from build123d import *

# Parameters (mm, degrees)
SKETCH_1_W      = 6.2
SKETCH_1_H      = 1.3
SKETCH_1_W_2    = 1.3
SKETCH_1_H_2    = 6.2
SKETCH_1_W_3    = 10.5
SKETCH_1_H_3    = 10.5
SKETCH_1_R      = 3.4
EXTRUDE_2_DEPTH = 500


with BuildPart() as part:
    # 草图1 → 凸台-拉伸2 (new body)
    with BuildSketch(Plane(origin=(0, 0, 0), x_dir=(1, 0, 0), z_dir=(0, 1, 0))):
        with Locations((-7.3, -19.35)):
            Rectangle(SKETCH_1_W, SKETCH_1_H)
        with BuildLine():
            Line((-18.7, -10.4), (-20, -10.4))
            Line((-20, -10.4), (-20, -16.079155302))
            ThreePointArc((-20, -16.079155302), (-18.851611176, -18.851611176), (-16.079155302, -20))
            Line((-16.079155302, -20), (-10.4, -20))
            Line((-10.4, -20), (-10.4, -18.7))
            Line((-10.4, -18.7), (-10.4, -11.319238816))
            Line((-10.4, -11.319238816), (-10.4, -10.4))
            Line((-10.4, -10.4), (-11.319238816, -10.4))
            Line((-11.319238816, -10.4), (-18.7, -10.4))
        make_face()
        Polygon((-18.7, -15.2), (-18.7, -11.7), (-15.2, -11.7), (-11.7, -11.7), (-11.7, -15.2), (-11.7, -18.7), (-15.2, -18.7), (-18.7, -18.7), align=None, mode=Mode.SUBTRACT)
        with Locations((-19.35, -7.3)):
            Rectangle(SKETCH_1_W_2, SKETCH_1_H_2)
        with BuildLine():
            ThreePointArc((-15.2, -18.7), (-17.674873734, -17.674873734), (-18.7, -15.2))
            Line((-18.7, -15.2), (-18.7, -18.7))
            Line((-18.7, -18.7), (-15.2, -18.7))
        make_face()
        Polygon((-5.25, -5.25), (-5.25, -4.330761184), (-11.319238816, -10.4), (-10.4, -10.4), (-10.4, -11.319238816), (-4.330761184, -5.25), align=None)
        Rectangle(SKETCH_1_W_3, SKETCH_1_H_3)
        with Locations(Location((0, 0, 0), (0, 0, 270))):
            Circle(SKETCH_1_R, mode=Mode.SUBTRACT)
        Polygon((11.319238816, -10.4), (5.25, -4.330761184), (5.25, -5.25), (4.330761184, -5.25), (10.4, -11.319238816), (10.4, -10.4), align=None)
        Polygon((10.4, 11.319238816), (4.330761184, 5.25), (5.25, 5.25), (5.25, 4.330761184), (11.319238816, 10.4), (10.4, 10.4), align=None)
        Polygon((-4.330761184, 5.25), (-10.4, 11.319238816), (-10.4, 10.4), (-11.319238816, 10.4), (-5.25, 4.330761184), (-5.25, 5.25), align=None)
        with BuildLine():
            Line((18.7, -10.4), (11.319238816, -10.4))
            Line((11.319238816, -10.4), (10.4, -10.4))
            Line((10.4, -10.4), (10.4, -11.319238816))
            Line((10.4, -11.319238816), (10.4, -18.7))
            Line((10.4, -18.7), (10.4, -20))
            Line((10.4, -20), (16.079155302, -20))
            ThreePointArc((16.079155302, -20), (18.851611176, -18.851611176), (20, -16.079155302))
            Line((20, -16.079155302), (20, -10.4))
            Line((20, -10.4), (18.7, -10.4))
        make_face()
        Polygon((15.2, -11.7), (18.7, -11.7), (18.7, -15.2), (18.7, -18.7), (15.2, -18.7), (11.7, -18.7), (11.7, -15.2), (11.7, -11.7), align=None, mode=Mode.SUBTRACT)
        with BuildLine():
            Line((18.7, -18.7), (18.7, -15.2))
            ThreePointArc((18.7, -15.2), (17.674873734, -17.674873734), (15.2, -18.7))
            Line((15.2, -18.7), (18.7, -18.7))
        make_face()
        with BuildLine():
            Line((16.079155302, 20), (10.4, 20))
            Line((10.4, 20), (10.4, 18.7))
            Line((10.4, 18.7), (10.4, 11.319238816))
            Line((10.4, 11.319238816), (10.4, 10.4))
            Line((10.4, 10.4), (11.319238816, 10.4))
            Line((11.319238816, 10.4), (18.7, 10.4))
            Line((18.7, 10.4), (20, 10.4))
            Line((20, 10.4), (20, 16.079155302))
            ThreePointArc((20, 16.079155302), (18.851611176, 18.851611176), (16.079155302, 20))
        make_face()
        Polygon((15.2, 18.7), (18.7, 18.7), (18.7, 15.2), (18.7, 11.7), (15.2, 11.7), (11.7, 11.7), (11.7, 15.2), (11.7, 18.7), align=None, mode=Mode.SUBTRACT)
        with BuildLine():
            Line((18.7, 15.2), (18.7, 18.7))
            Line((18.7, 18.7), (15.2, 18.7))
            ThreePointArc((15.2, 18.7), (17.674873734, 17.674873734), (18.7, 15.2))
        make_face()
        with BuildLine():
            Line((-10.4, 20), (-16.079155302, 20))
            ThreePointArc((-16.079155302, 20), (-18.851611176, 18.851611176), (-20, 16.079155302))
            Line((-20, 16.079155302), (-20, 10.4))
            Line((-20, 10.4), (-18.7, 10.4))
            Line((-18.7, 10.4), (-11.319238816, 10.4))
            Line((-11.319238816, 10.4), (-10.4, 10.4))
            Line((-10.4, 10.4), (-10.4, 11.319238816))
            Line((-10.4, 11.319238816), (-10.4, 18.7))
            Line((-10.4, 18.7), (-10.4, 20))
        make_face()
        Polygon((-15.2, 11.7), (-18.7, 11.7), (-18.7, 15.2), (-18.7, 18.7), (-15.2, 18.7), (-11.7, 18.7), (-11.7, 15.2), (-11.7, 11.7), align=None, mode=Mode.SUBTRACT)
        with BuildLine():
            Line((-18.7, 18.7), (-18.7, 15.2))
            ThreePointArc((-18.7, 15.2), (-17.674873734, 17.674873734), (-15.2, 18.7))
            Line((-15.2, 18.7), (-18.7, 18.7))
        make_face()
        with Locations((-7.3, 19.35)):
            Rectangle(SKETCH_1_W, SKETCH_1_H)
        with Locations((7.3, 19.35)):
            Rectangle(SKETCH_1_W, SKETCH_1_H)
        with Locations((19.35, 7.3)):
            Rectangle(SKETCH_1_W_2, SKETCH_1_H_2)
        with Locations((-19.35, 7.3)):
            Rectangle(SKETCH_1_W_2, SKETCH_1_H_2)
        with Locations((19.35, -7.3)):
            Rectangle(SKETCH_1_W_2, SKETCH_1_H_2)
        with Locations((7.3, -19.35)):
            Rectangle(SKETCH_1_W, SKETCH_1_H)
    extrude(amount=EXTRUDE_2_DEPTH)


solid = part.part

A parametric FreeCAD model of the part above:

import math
import FreeCAD as App
import Part
import Sketcher
Q = App.Units.Quantity

doc = App.newDocument("Part")
params = doc.addObject("Spreadsheet::Sheet", "Params")
for row, (alias, value) in enumerate([
    ("sketch1_diameter", "6.8 mm"),
    ("sketch1_radius", "3.5 mm"),
    ("sketch1_width", "7 mm"),
    ("sketch1_width2", "6.2 mm"),
    ("sketch1_width3", "1.3 mm"),
    ("pad1_length", "500 mm"),
], start=1):
    params.set(f"A{row}", alias)
    params.set(f"B{row}", "=" + value)
    params.setAlias(f"B{row}", alias)

body = doc.addObject("PartDesign::Body", "Body")

sketch1 = body.newObject("Sketcher::SketchObject", "Sketch")
sketch1.AttachmentSupport = (doc.getObject("XZ_Plane"), [""])
sketch1.MapMode = "FlatFace"
sketch1.addGeometry(Part.LineSegment(App.Vector(-4.2, 20, 0), App.Vector(-4.2, 18.7, 0)), False)
sketch1.addGeometry(Part.LineSegment(App.Vector(-4.2, 18.7, 0), App.Vector(-10.4, 18.7, 0)), False)
sketch1.addGeometry(Part.LineSegment(App.Vector(-10.4, 18.7, 0), App.Vector(-10.4, 11.3, 0)), False)
sketch1.addGeometry(Part.LineSegment(App.Vector(-10.4, 11.3, 0), App.Vector(-4.3, 5.2, 0)), False)
sketch1.addGeometry(Part.LineSegment(App.Vector(-4.3, 5.2, 0), App.Vector(4.3, 5.2, 0)), False)
sketch1.addGeometry(Part.LineSegment(App.Vector(4.3, 5.2, 0), App.Vector(10.4, 11.3, 0)), False)
sketch1.addGeometry(Part.LineSegment(App.Vector(10.4, 11.3, 0), App.Vector(10.4, 18.7, 0)), False)
sketch1.addGeometry(Part.LineSegment(App.Vector(10.4, 18.7, 0), App.Vector(4.2, 18.7, 0)), False)
sketch1.addGeometry(Part.LineSegment(App.Vector(4.2, 18.7, 0), App.Vector(4.2, 20, 0)), False)
sketch1.addGeometry(Part.LineSegment(App.Vector(4.2, 20, 0), App.Vector(16.1, 20, 0)), False)
sketch1.addGeometry(Part.ArcOfCircle(Part.Circle(App.Vector(16.1, 16.1, 0), App.Vector(0, 0, 1), 3.9), math.radians(0), math.radians(90)), False)
sketch1.addGeometry(Part.LineSegment(App.Vector(20, 16.1, 0), App.Vector(20, 4.2, 0)), False)
sketch1.addGeometry(Part.LineSegment(App.Vector(20, 4.2, 0), App.Vector(18.7, 4.2, 0)), False)
sketch1.addGeometry(Part.LineSegment(App.Vector(18.7, 4.2, 0), App.Vector(18.7, 10.4, 0)), False)
sketch1.addGeometry(Part.LineSegment(App.Vector(18.7, 10.4, 0), App.Vector(11.3, 10.4, 0)), False)
sketch1.addGeometry(Part.LineSegment(App.Vector(11.3, 10.4, 0), App.Vector(5.2, 4.3, 0)), False)
sketch1.addGeometry(Part.LineSegment(App.Vector(5.2, 4.3, 0), App.Vector(5.2, -4.3, 0)), False)
sketch1.addGeometry(Part.LineSegment(App.Vector(5.2, -4.3, 0), App.Vector(11.3, -10.4, 0)), False)
sketch1.addGeometry(Part.LineSegment(App.Vector(11.3, -10.4, 0), App.Vector(18.7, -10.4, 0)), False)
sketch1.addGeometry(Part.LineSegment(App.Vector(18.7, -10.4, 0), App.Vector(18.7, -4.2, 0)), False)
sketch1.addGeometry(Part.LineSegment(App.Vector(18.7, -4.2, 0), App.Vector(20, -4.2, 0)), False)
sketch1.addGeometry(Part.LineSegment(App.Vector(20, -4.2, 0), App.Vector(20, -16.1, 0)), False)
sketch1.addGeometry(Part.ArcOfCircle(Part.Circle(App.Vector(16.1, -16.1, 0), App.Vector(0, 0, 1), 3.9), math.radians(-90), math.radians(0)), False)
sketch1.addGeometry(Part.LineSegment(App.Vector(16.1, -20, 0), App.Vector(4.2, -20, 0)), False)
sketch1.addGeometry(Part.LineSegment(App.Vector(4.2, -20, 0), App.Vector(4.2, -18.7, 0)), False)
sketch1.addGeometry(Part.LineSegment(App.Vector(4.2, -18.7, 0), App.Vector(10.4, -18.7, 0)), False)
sketch1.addGeometry(Part.LineSegment(App.Vector(10.4, -18.7, 0), App.Vector(10.4, -11.3, 0)), False)
sketch1.addGeometry(Part.LineSegment(App.Vector(10.4, -11.3, 0), App.Vector(4.3, -5.2, 0)), False)
sketch1.addGeometry(Part.LineSegment(App.Vector(4.3, -5.2, 0), App.Vector(-4.3, -5.2, 0)), False)
sketch1.addGeometry(Part.LineSegment(App.Vector(-4.3, -5.2, 0), App.Vector(-10.4, -11.3, 0)), False)
sketch1.addGeometry(Part.LineSegment(App.Vector(-10.4, -11.3, 0), App.Vector(-10.4, -18.7, 0)), False)
sketch1.addGeometry(Part.LineSegment(App.Vector(-10.4, -18.7, 0), App.Vector(-4.2, -18.7, 0)), False)
sketch1.addGeometry(Part.LineSegment(App.Vector(-4.2, -18.7, 0), App.Vector(-4.2, -20, 0)), False)
sketch1.addGeometry(Part.LineSegment(App.Vector(-4.2, -20, 0), App.Vector(-16.1, -20, 0)), False)
sketch1.addGeometry(Part.ArcOfCircle(Part.Circle(App.Vector(-16.1, -16.1, 0), App.Vector(0, 0, 1), 3.9), math.radians(180), math.radians(270)), False)
sketch1.addGeometry(Part.LineSegment(App.Vector(-20, -16.1, 0), App.Vector(-20, -4.2, 0)), False)
sketch1.addGeometry(Part.LineSegment(App.Vector(-20, -4.2, 0), App.Vector(-18.7, -4.2, 0)), False)
sketch1.addGeometry(Part.LineSegment(App.Vector(-18.7, -4.2, 0), App.Vector(-18.7, -10.4, 0)), False)
sketch1.addGeometry(Part.LineSegment(App.Vector(-18.7, -10.4, 0), App.Vector(-11.3, -10.4, 0)), False)
sketch1.addGeometry(Part.LineSegment(App.Vector(-11.3, -10.4, 0), App.Vector(-5.2, -4.3, 0)), False)
sketch1.addGeometry(Part.LineSegment(App.Vector(-5.2, -4.3, 0), App.Vector(-5.2, 4.3, 0)), False)
sketch1.addGeometry(Part.LineSegment(App.Vector(-5.2, 4.3, 0), App.Vector(-11.3, 10.4, 0)), False)
sketch1.addGeometry(Part.LineSegment(App.Vector(-11.3, 10.4, 0), App.Vector(-18.7, 10.4, 0)), False)
sketch1.addGeometry(Part.LineSegment(App.Vector(-18.7, 10.4, 0), App.Vector(-18.7, 4.2, 0)), False)
sketch1.addGeometry(Part.LineSegment(App.Vector(-18.7, 4.2, 0), App.Vector(-20, 4.2, 0)), False)
sketch1.addGeometry(Part.LineSegment(App.Vector(-20, 4.2, 0), App.Vector(-20, 16.1, 0)), False)
sketch1.addGeometry(Part.ArcOfCircle(Part.Circle(App.Vector(-16.1, 16.1, 0), App.Vector(0, 0, 1), 3.9), math.radians(90), math.radians(180)), False)
sketch1.addGeometry(Part.LineSegment(App.Vector(-16.1, 20, 0), App.Vector(-4.2, 20, 0)), False)
sketch1.addGeometry(Part.LineSegment(App.Vector(-18.7, 15.2, 0), App.Vector(-18.7, 11.7, 0)), False)
sketch1.addGeometry(Part.LineSegment(App.Vector(-18.7, 11.7, 0), App.Vector(-11.7, 11.7, 0)), False)
sketch1.addGeometry(Part.LineSegment(App.Vector(-11.7, 11.7, 0), App.Vector(-11.7, 18.7, 0)), False)
sketch1.addGeometry(Part.LineSegment(App.Vector(-11.7, 18.7, 0), App.Vector(-15.2, 18.7, 0)), False)
sketch1.addGeometry(Part.ArcOfCircle(Part.Circle(App.Vector(-15.2, 15.2, 0), App.Vector(0, 0, 1), 3.5), math.radians(90), math.radians(180)), False)
sketch1.addGeometry(Part.LineSegment(App.Vector(11.7, 11.7, 0), App.Vector(18.7, 11.7, 0)), False)
sketch1.addGeometry(Part.LineSegment(App.Vector(18.7, 11.7, 0), App.Vector(18.7, 15.2, 0)), False)
sketch1.addGeometry(Part.ArcOfCircle(Part.Circle(App.Vector(15.2, 15.2, 0), App.Vector(0, 0, 1), 3.5), math.radians(0), math.radians(90)), False)
sketch1.addGeometry(Part.LineSegment(App.Vector(15.2, 18.7, 0), App.Vector(11.7, 18.7, 0)), False)
sketch1.addGeometry(Part.LineSegment(App.Vector(11.7, 18.7, 0), App.Vector(11.7, 11.7, 0)), False)
sketch1.addGeometry(Part.Circle(App.Vector(0, 0, 0), App.Vector(0, 0, 1), 3.4), False)
sketch1.addGeometry(Part.LineSegment(App.Vector(-11.7, -11.7, 0), App.Vector(-18.7, -11.7, 0)), False)
sketch1.addGeometry(Part.LineSegment(App.Vector(-18.7, -11.7, 0), App.Vector(-18.7, -15.2, 0)), False)
sketch1.addGeometry(Part.ArcOfCircle(Part.Circle(App.Vector(-15.2, -15.2, 0), App.Vector(0, 0, 1), 3.5), math.radians(-180), math.radians(-90)), False)
sketch1.addGeometry(Part.LineSegment(App.Vector(-15.2, -18.7, 0), App.Vector(-11.7, -18.7, 0)), False)
sketch1.addGeometry(Part.LineSegment(App.Vector(-11.7, -18.7, 0), App.Vector(-11.7, -11.7, 0)), False)
sketch1.addGeometry(Part.LineSegment(App.Vector(11.7, -18.7, 0), App.Vector(15.2, -18.7, 0)), False)
sketch1.addGeometry(Part.ArcOfCircle(Part.Circle(App.Vector(15.2, -15.2, 0), App.Vector(0, 0, 1), 3.5), math.radians(-90), math.radians(0)), False)
sketch1.addGeometry(Part.LineSegment(App.Vector(18.7, -15.2, 0), App.Vector(18.7, -11.7, 0)), False)
sketch1.addGeometry(Part.LineSegment(App.Vector(18.7, -11.7, 0), App.Vector(11.7, -11.7, 0)), False)
sketch1.addGeometry(Part.LineSegment(App.Vector(11.7, -11.7, 0), App.Vector(11.7, -18.7, 0)), False)
sketch1.addConstraint(Sketcher.Constraint("Coincident", 0, 2, 1, 1))
sketch1.addConstraint(Sketcher.Constraint("Coincident", 1, 2, 2, 1))
sketch1.addConstraint(Sketcher.Constraint("Coincident", 2, 2, 3, 1))
sketch1.addConstraint(Sketcher.Constraint("Coincident", 3, 2, 4, 1))
sketch1.addConstraint(Sketcher.Constraint("Coincident", 4, 2, 5, 1))
sketch1.addConstraint(Sketcher.Constraint("Coincident", 5, 2, 6, 1))
sketch1.addConstraint(Sketcher.Constraint("Coincident", 6, 2, 7, 1))
sketch1.addConstraint(Sketcher.Constraint("Coincident", 7, 2, 8, 1))
sketch1.addConstraint(Sketcher.Constraint("Coincident", 8, 2, 9, 1))
sketch1.addConstraint(Sketcher.Constraint("Tangent", 9, 2, 10, 2))
sketch1.addConstraint(Sketcher.Constraint("Tangent", 10, 1, 11, 1))
sketch1.addConstraint(Sketcher.Constraint("Coincident", 11, 2, 12, 1))
sketch1.addConstraint(Sketcher.Constraint("Coincident", 12, 2, 13, 1))
sketch1.addConstraint(Sketcher.Constraint("Coincident", 13, 2, 14, 1))
sketch1.addConstraint(Sketcher.Constraint("Coincident", 14, 2, 15, 1))
sketch1.addConstraint(Sketcher.Constraint("Coincident", 15, 2, 16, 1))
sketch1.addConstraint(Sketcher.Constraint("Coincident", 16, 2, 17, 1))
sketch1.addConstraint(Sketcher.Constraint("Coincident", 17, 2, 18, 1))
sketch1.addConstraint(Sketcher.Constraint("Coincident", 18, 2, 19, 1))
sketch1.addConstraint(Sketcher.Constraint("Coincident", 19, 2, 20, 1))
sketch1.addConstraint(Sketcher.Constraint("Coincident", 20, 2, 21, 1))
sketch1.addConstraint(Sketcher.Constraint("Tangent", 21, 2, 22, 2))
sketch1.addConstraint(Sketcher.Constraint("Tangent", 22, 1, 23, 1))
sketch1.addConstraint(Sketcher.Constraint("Coincident", 23, 2, 24, 1))
sketch1.addConstraint(Sketcher.Constraint("Coincident", 24, 2, 25, 1))
sketch1.addConstraint(Sketcher.Constraint("Coincident", 25, 2, 26, 1))
sketch1.addConstraint(Sketcher.Constraint("Coincident", 26, 2, 27, 1))
sketch1.addConstraint(Sketcher.Constraint("Coincident", 27, 2, 28, 1))
sketch1.addConstraint(Sketcher.Constraint("Coincident", 28, 2, 29, 1))
sketch1.addConstraint(Sketcher.Constraint("Coincident", 29, 2, 30, 1))
sketch1.addConstraint(Sketcher.Constraint("Coincident", 30, 2, 31, 1))
sketch1.addConstraint(Sketcher.Constraint("Coincident", 31, 2, 32, 1))
sketch1.addConstraint(Sketcher.Constraint("Coincident", 32, 2, 33, 1))
sketch1.addConstraint(Sketcher.Constraint("Tangent", 33, 2, 34, 2))
sketch1.addConstraint(Sketcher.Constraint("Tangent", 34, 1, 35, 1))
sketch1.addConstraint(Sketcher.Constraint("Coincident", 35, 2, 36, 1))
sketch1.addConstraint(Sketcher.Constraint("Coincident", 36, 2, 37, 1))
sketch1.addConstraint(Sketcher.Constraint("Coincident", 37, 2, 38, 1))
sketch1.addConstraint(Sketcher.Constraint("Coincident", 38, 2, 39, 1))
sketch1.addConstraint(Sketcher.Constraint("Coincident", 39, 2, 40, 1))
sketch1.addConstraint(Sketcher.Constraint("Coincident", 40, 2, 41, 1))
sketch1.addConstraint(Sketcher.Constraint("Coincident", 41, 2, 42, 1))
sketch1.addConstraint(Sketcher.Constraint("Coincident", 42, 2, 43, 1))
sketch1.addConstraint(Sketcher.Constraint("Coincident", 43, 2, 44, 1))
sketch1.addConstraint(Sketcher.Constraint("Coincident", 44, 2, 45, 1))
sketch1.addConstraint(Sketcher.Constraint("Tangent", 45, 2, 46, 2))
sketch1.addConstraint(Sketcher.Constraint("Tangent", 46, 1, 47, 1))
sketch1.addConstraint(Sketcher.Constraint("Coincident", 47, 2, 0, 1))
sketch1.addConstraint(Sketcher.Constraint("Coincident", 48, 2, 49, 1))
sketch1.addConstraint(Sketcher.Constraint("Coincident", 49, 2, 50, 1))
sketch1.addConstraint(Sketcher.Constraint("Coincident", 50, 2, 51, 1))
sketch1.addConstraint(Sketcher.Constraint("Tangent", 51, 2, 52, 1))
sketch1.addConstraint(Sketcher.Constraint("Tangent", 52, 2, 48, 1))
sketch1.addConstraint(Sketcher.Constraint("Coincident", 53, 2, 54, 1))
sketch1.addConstraint(Sketcher.Constraint("Tangent", 54, 2, 55, 1))
sketch1.addConstraint(Sketcher.Constraint("Tangent", 55, 2, 56, 1))
sketch1.addConstraint(Sketcher.Constraint("Coincident", 56, 2, 57, 1))
sketch1.addConstraint(Sketcher.Constraint("Coincident", 57, 2, 53, 1))
sketch1.addConstraint(Sketcher.Constraint("Coincident", 59, 2, 60, 1))
sketch1.addConstraint(Sketcher.Constraint("Tangent", 60, 2, 61, 1))
sketch1.addConstraint(Sketcher.Constraint("Tangent", 61, 2, 62, 1))
sketch1.addConstraint(Sketcher.Constraint("Coincident", 62, 2, 63, 1))
sketch1.addConstraint(Sketcher.Constraint("Coincident", 63, 2, 59, 1))
sketch1.addConstraint(Sketcher.Constraint("Tangent", 64, 2, 65, 1))
sketch1.addConstraint(Sketcher.Constraint("Tangent", 65, 2, 66, 1))
sketch1.addConstraint(Sketcher.Constraint("Coincident", 66, 2, 67, 1))
sketch1.addConstraint(Sketcher.Constraint("Coincident", 67, 2, 68, 1))
sketch1.addConstraint(Sketcher.Constraint("Coincident", 68, 2, 64, 1))
sketch1.addConstraint(Sketcher.Constraint("Vertical", 0))
sketch1.addConstraint(Sketcher.Constraint("Horizontal", 1))
sketch1.addConstraint(Sketcher.Constraint("Vertical", 2))
sketch1.addConstraint(Sketcher.Constraint("Horizontal", 4))
sketch1.addConstraint(Sketcher.Constraint("Vertical", 6))
sketch1.addConstraint(Sketcher.Constraint("Horizontal", 7))
sketch1.addConstraint(Sketcher.Constraint("Vertical", 8))
sketch1.addConstraint(Sketcher.Constraint("Horizontal", 9))
sketch1.addConstraint(Sketcher.Constraint("Vertical", 11))
sketch1.addConstraint(Sketcher.Constraint("Horizontal", 12))
sketch1.addConstraint(Sketcher.Constraint("Vertical", 13))
sketch1.addConstraint(Sketcher.Constraint("Horizontal", 14))
sketch1.addConstraint(Sketcher.Constraint("Vertical", 16))
sketch1.addConstraint(Sketcher.Constraint("Horizontal", 18))
sketch1.addConstraint(Sketcher.Constraint("Vertical", 19))
sketch1.addConstraint(Sketcher.Constraint("Horizontal", 20))
sketch1.addConstraint(Sketcher.Constraint("Vertical", 21))
sketch1.addConstraint(Sketcher.Constraint("Horizontal", 23))
sketch1.addConstraint(Sketcher.Constraint("Vertical", 24))
sketch1.addConstraint(Sketcher.Constraint("Horizontal", 25))
sketch1.addConstraint(Sketcher.Constraint("Vertical", 26))
sketch1.addConstraint(Sketcher.Constraint("Horizontal", 28))
sketch1.addConstraint(Sketcher.Constraint("Vertical", 30))
sketch1.addConstraint(Sketcher.Constraint("Horizontal", 31))
sketch1.addConstraint(Sketcher.Constraint("Vertical", 32))
sketch1.addConstraint(Sketcher.Constraint("Horizontal", 33))
sketch1.addConstraint(Sketcher.Constraint("Vertical", 35))
sketch1.addConstraint(Sketcher.Constraint("Horizontal", 36))
sketch1.addConstraint(Sketcher.Constraint("Vertical", 37))
sketch1.addConstraint(Sketcher.Constraint("Horizontal", 38))
sketch1.addConstraint(Sketcher.Constraint("Vertical", 40))
sketch1.addConstraint(Sketcher.Constraint("Horizontal", 42))
sketch1.addConstraint(Sketcher.Constraint("Vertical", 43))
sketch1.addConstraint(Sketcher.Constraint("Horizontal", 44))
sketch1.addConstraint(Sketcher.Constraint("Vertical", 45))
sketch1.addConstraint(Sketcher.Constraint("Horizontal", 47))
sketch1.addConstraint(Sketcher.Constraint("Vertical", 48))
sketch1.addConstraint(Sketcher.Constraint("Horizontal", 49))
sketch1.addConstraint(Sketcher.Constraint("Vertical", 50))
sketch1.addConstraint(Sketcher.Constraint("Horizontal", 51))
sketch1.addConstraint(Sketcher.Constraint("Horizontal", 53))
sketch1.addConstraint(Sketcher.Constraint("Vertical", 54))
sketch1.addConstraint(Sketcher.Constraint("Horizontal", 56))
sketch1.addConstraint(Sketcher.Constraint("Vertical", 57))
sketch1.addConstraint(Sketcher.Constraint("Horizontal", 59))
sketch1.addConstraint(Sketcher.Constraint("Vertical", 60))
sketch1.addConstraint(Sketcher.Constraint("Horizontal", 62))
sketch1.addConstraint(Sketcher.Constraint("Vertical", 63))
sketch1.addConstraint(Sketcher.Constraint("Horizontal", 64))
sketch1.addConstraint(Sketcher.Constraint("Vertical", 66))
sketch1.addConstraint(Sketcher.Constraint("Horizontal", 67))
sketch1.addConstraint(Sketcher.Constraint("Vertical", 68))
sketch1.addConstraint(Sketcher.Constraint("Coincident", 58, 3, -1, 1))
sketch1.addConstraint(Sketcher.Constraint("Equal", 10, 22))
sketch1.addConstraint(Sketcher.Constraint("Equal", 22, 34))
sketch1.addConstraint(Sketcher.Constraint("Equal", 34, 46))
sketch1.addConstraint(Sketcher.Constraint("Equal", 52, 55))
sketch1.addConstraint(Sketcher.Constraint("Equal", 55, 61))
sketch1.addConstraint(Sketcher.Constraint("Equal", 61, 65))
sketch1.addConstraint(Sketcher.Constraint("Symmetric", 10, 3, 34, 3, -1, 1))
sketch1.addConstraint(Sketcher.Constraint("Symmetric", 22, 3, 46, 3, -1, 1))
sketch1.addConstraint(Sketcher.Constraint("Symmetric", 55, 3, 61, 3, -1, 1))
sketch1.addConstraint(Sketcher.Constraint("Symmetric", 52, 3, 65, 3, -1, 1))
sketch1.addConstraint(Sketcher.Constraint("Symmetric", 0, 2, 24, 2, -1, 1))
sketch1.addConstraint(Sketcher.Constraint("Symmetric", 2, 2, 26, 2, -1, 1))
sketch1.addConstraint(Sketcher.Constraint("Symmetric", 3, 2, 27, 2, -1, 1))
sketch1.addConstraint(Sketcher.Constraint("Symmetric", 5, 2, 29, 2, -1, 1))
sketch1.addConstraint(Sketcher.Constraint("Symmetric", 7, 2, 31, 2, -1, 1))
sketch1.addConstraint(Sketcher.Constraint("Symmetric", 12, 2, 36, 2, -1, 1))
sketch1.addConstraint(Sketcher.Constraint("Symmetric", 14, 2, 38, 2, -1, 1))
sketch1.addConstraint(Sketcher.Constraint("Symmetric", 15, 2, 39, 2, -1, 1))
sketch1.addConstraint(Sketcher.Constraint("Symmetric", 17, 2, 41, 2, -1, 1))
sketch1.addConstraint(Sketcher.Constraint("Symmetric", 19, 2, 43, 2, -1, 1))
sketch1.addConstraint(Sketcher.Constraint("Symmetric", 57, 2, 63, 2, -1, 1))
sketch1.addConstraint(Sketcher.Constraint("Symmetric", 49, 2, 67, 2, -1, 1))
sketch1.addConstraint(Sketcher.Constraint("Symmetric", 22, 3, 34, 3, -2))
sketch1.addConstraint(Sketcher.Constraint("Symmetric", 52, 3, 55, 3, -2))
sketch1.addConstraint(Sketcher.Constraint("Symmetric", 2, 2, 5, 2, -2))
sketch1.addConstraint(Sketcher.Constraint("Symmetric", 0, 2, 7, 2, -2))
sketch1.addConstraint(Sketcher.Constraint("Symmetric", 19, 2, 36, 2, -2))
sketch1.addConstraint(Sketcher.Constraint("Symmetric", 17, 2, 38, 2, -2))
sketch1.addConstraint(Sketcher.Constraint("Symmetric", 49, 2, 57, 2, -2))
sketch1.addConstraint(Sketcher.Constraint("Perpendicular", 3, 5))
sketch1.addConstraint(Sketcher.Constraint("Parallel", 5, 15))
sketch1.addConstraint(Sketcher.Constraint("Perpendicular", 15, 17))
sketch1.addConstraint(Sketcher.Constraint("Perpendicular", 27, 29))
sketch1.addConstraint(Sketcher.Constraint("Perpendicular", 39, 41))
sketch1.addConstraint(Sketcher.Constraint("Horizontal", 16, 2, 39, 2))
sketch1.addConstraint(Sketcher.Constraint("Horizontal", 7, 2, 50, 2))
sketch1.addConstraint(Sketcher.Constraint("Vertical", 43, 2, 48, 2))
sketch1.addConstraint(Sketcher.Constraint("Equal", 44, 0))
sketch1.addConstraint(Sketcher.Constraint("Equal", 42, 2))
sketch1.addConstraint(Sketcher.Constraint("Equal", 47, 11))
sketch1.addConstraint(Sketcher.Constraint("Equal", 31, 13))
sketch1.addConstraint(Sketcher.Constraint("Equal", 28, 16))
sketch1.addConstraint(Sketcher.Constraint("Equal", 64, 48))
sketch1.addConstraint(Sketcher.Constraint("Equal", 5, 15))
sketch1.addConstraint(Sketcher.Constraint("Diameter", 58, Q("6.8 mm")))
sketch1.addConstraint(Sketcher.Constraint("Radius", 52, Q("3.5 mm")))
sketch1.addConstraint(Sketcher.Constraint("DistanceX", 49, 1, 49, 2, Q("7 mm")))
sketch1.addConstraint(Sketcher.Constraint("DistanceX", 1, 2, 1, 1, Q("6.2 mm")))
sketch1.addConstraint(Sketcher.Constraint("DistanceX", 12, 2, 12, 1, Q("1.3 mm")))
sketch1.addConstraint(Sketcher.Constraint("DistanceY", -1, 1, 8, 2, Q("20 mm")))
sketch1.addConstraint(Sketcher.Constraint("DistanceX", 0, 2, -1, 1, Q("4.2 mm")))
sketch1.addConstraint(Sketcher.Constraint("DistanceY", -1, 1, 3, 2, Q("5.25 mm")))
sketch1.addConstraint(Sketcher.Constraint("Radius", 10, Q("3.920845 mm")))
sketch1.addConstraint(Sketcher.Constraint("Distance", 3, Q("8.5832 mm")))
sketch1.setExpression("Constraints[165]", "Params.sketch1_diameter")
sketch1.setExpression("Constraints[166]", "Params.sketch1_radius")
sketch1.setExpression("Constraints[167]", "Params.sketch1_width")
sketch1.setExpression("Constraints[168]", "Params.sketch1_width2")
sketch1.setExpression("Constraints[169]", "Params.sketch1_width3")
pad1 = body.newObject("PartDesign::Pad", "Pad")
pad1.Profile = sketch1
pad1.setExpression("Length", "Params.pad1_length")
pad1.Reversed = True

doc.recompute()
